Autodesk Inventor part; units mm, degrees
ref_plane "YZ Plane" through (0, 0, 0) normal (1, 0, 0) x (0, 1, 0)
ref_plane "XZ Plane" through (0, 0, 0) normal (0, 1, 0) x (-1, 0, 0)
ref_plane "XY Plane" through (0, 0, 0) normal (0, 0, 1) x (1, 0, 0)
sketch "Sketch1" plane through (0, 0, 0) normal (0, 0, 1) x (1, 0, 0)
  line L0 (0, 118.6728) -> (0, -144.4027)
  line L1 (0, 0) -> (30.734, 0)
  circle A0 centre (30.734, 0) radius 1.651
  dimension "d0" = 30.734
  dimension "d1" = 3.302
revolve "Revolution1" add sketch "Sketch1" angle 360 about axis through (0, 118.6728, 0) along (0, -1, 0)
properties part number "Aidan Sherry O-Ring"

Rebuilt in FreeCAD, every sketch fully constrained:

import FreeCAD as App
import Part
import Sketcher
from FreeCAD import Vector
Q = App.Units.Quantity

doc = App.newDocument("Part")
body = doc.addObject("PartDesign::Body", "Body")

sketch1 = doc.addObject("Sketcher::SketchObject", "Sketch")
body.addObject(sketch1)
sketch1.AttachmentSupport = (doc.XY_Plane, [""])
sketch1.MapMode = "FlatFace"
sketch1.addGeometry(Part.Circle(Vector(30.7, 0, 0), Vector(0, 0, 1), 1.7), False)
sketch1.addConstraint([
    Sketcher.Constraint("PointOnObject", 0, 3, -1),
    Sketcher.Constraint("Diameter", 0, Q("0.13 in")),
    Sketcher.Constraint("DistanceX", -1, 1, 0, 3, Q("1.21 in")),
])
revolution = doc.addObject("PartDesign::Revolution", "Revolution")
body.addObject(revolution)
revolution.Profile = sketch1
revolution.ReferenceAxis = (sketch1, ["V_Axis"])
revolution.Angle = 360

doc.recompute()
